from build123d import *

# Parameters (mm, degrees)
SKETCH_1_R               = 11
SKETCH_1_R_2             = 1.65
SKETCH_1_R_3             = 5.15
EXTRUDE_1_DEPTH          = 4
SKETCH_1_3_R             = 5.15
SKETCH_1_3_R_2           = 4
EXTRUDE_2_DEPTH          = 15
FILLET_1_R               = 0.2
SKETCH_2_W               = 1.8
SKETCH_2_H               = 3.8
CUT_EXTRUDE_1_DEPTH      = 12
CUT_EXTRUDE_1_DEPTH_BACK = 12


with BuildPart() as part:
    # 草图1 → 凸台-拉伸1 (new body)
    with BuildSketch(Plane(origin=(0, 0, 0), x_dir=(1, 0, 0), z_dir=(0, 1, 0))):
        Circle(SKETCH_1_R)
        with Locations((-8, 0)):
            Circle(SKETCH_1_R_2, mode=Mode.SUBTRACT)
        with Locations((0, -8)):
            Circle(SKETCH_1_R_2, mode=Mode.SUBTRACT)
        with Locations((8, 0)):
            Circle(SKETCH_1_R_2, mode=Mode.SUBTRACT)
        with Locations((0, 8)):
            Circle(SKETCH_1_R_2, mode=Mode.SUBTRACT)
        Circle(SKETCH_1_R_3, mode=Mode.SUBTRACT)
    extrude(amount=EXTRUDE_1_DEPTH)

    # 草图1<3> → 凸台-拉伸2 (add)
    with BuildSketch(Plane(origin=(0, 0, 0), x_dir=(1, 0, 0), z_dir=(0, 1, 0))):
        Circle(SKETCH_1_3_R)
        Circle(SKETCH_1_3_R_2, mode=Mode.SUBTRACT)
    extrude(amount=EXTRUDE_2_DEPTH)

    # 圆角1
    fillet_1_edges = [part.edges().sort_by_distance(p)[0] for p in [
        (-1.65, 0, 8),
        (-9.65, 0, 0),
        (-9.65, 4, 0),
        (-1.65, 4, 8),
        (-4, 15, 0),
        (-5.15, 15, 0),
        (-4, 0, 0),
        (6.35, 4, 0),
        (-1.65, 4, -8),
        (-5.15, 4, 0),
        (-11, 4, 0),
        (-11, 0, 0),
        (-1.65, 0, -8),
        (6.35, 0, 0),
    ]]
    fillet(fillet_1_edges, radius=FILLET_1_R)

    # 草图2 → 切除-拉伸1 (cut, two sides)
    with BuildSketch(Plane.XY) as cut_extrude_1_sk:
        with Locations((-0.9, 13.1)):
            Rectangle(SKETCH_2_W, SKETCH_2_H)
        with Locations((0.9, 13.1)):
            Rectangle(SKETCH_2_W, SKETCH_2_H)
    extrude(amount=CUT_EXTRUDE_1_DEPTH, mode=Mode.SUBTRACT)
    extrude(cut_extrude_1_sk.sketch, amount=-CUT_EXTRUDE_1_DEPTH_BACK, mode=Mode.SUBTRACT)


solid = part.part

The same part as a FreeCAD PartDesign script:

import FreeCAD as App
import Part
import Sketcher


def edges_at(feature, points):
    """Names of the edges that pass closest to the given points."""
    edges = feature.Shape.Edges
    near = lambda p: min(range(len(edges)), key=lambda i: edges[i].distToShape(Part.Vertex(*p))[0])
    return sorted({f"Edge{near(p) + 1}" for p in points})


def add_polygon(sketch, points):
    """Adds a closed chain of lines whose ends are joined by coincident constraints."""
    first, n = sketch.GeometryCount, len(points)
    for a, b in zip(points, points[1:] + points[:1]):
        sketch.addGeometry(Part.LineSegment(App.Vector(*a, 0), App.Vector(*b, 0)), False)
    for i in range(n):
        sketch.addConstraint(Sketcher.Constraint("Coincident", first + i, 2, first + (i + 1) % n, 1))

doc = App.newDocument("Part")
body = doc.addObject("PartDesign::Body", "Body")

sketch1 = body.newObject("Sketcher::SketchObject", "Sketch")
sketch1.AttachmentSupport = (doc.getObject("XZ_Plane"), [""])
sketch1.MapMode = "FlatFace"
sketch1.addGeometry([
    Part.Circle(App.Vector(0, 0, 0), App.Vector(0, 0, 1), 11),
    Part.Circle(App.Vector(0, 8, 0), App.Vector(0, 0, 1), 1.65),
    Part.Circle(App.Vector(-8, 0, 0), App.Vector(0, 0, 1), 1.65),
    Part.Circle(App.Vector(0, 0, 0), App.Vector(0, 0, 1), 5.15),
    Part.Circle(App.Vector(8, 0, 0), App.Vector(0, 0, 1), 1.65),
    Part.Circle(App.Vector(0, -8, 0), App.Vector(0, 0, 1), 1.65),
], False)
sketch1.addConstraint([
    Sketcher.Constraint("Coincident", 0, 3, -1, 1),
    Sketcher.Constraint("Coincident", 3, 3, -1, 1),
    Sketcher.Constraint("Equal", 1, 2),
    Sketcher.Constraint("Equal", 2, 4),
    Sketcher.Constraint("Equal", 4, 5),
    Sketcher.Constraint("Symmetric", 2, 3, 4, 3, -1, 1),
    Sketcher.Constraint("Symmetric", 1, 3, 5, 3, -1, 1),
    Sketcher.Constraint("PointOnObject", 1, 3, -2),
    Sketcher.Constraint("PointOnObject", 2, 3, -1),
    Sketcher.Constraint("Diameter", 0, 22.0),
    Sketcher.Constraint("Diameter", 1, 3.3),
    Sketcher.Constraint("Diameter", 3, 10.3),
    Sketcher.Constraint("DistanceY", -1, 1, 1, 3, 8.0),
    Sketcher.Constraint("DistanceX", 2, 3, -1, 1, 8.0),
])
pad1 = body.newObject("PartDesign::Pad", "Pad")
pad1.Profile = sketch1
pad1.Length = 4
pad1.Reversed = True

sketch2 = body.newObject("Sketcher::SketchObject", "Sketch001")
sketch2.AttachmentSupport = (doc.getObject("XZ_Plane"), [""])
sketch2.MapMode = "FlatFace"
sketch2.addGeometry([
    Part.Circle(App.Vector(0, 0, 0), App.Vector(0, 0, 1), 5.15),
    Part.Circle(App.Vector(0, 0, 0), App.Vector(0, 0, 1), 4),
], False)
sketch2.addConstraint([
    Sketcher.Constraint("Coincident", 0, 3, -1, 1),
    Sketcher.Constraint("Coincident", 1, 3, -1, 1),
    Sketcher.Constraint("Diameter", 1, 8.0),
    Sketcher.Constraint("Diameter", 0, 10.3),
])
pad2 = body.newObject("PartDesign::Pad", "Pad001")
pad2.Profile = sketch2
pad2.Length = 15
pad2.Reversed = True
doc.recompute()

fillet = body.newObject("PartDesign::Fillet", "Fillet")
fillet.Base = (pad2, edges_at(pad2, [
    (-1.65, 0, 8),
    (-9.65, 0, 0),
    (-9.65, 4, 0),
    (-1.65, 4, 8),
    (-4, 15, 0),
    (-5.15, 15, 0),
    (-4, 0, 0),
    (6.35, 4, 0),
    (-1.65, 4, -8),
    (-5.15, 4, 0),
    (-11, 4, 0),
    (-11, 0, 0),
    (-1.65, 0, -8),
    (6.35, 0, 0),
]))
fillet.Radius = 0.2

sketch3 = body.newObject("Sketcher::SketchObject", "Sketch002")
sketch3.AttachmentSupport = (doc.getObject("XY_Plane"), [""])
sketch3.MapMode = "FlatFace"
add_polygon(sketch3, [(-1.8, 15), (-1.8, 11.2), (1.8, 11.2), (1.8, 15)])
sketch3.addConstraint([
    Sketcher.Constraint("Vertical", 0),
    Sketcher.Constraint("Horizontal", 1),
    Sketcher.Constraint("Vertical", 2),
    Sketcher.Constraint("Horizontal", 3),
    Sketcher.Constraint("DistanceX", 1, 1, 1, 2, 3.6),
    Sketcher.Constraint("DistanceY", 0, 2, 0, 1, 3.8),
    Sketcher.Constraint("DistanceY", -1, 1, 2, 2, 15.0),
    Sketcher.Constraint("DistanceX", 0, 2, -1, 1, 1.8),
])
pocket1 = body.newObject("PartDesign::Pocket", "Pocket")
pocket1.Profile = sketch3
pocket1.Type = "ThroughAll"
pocket1.Midplane = True

doc.recompute()
